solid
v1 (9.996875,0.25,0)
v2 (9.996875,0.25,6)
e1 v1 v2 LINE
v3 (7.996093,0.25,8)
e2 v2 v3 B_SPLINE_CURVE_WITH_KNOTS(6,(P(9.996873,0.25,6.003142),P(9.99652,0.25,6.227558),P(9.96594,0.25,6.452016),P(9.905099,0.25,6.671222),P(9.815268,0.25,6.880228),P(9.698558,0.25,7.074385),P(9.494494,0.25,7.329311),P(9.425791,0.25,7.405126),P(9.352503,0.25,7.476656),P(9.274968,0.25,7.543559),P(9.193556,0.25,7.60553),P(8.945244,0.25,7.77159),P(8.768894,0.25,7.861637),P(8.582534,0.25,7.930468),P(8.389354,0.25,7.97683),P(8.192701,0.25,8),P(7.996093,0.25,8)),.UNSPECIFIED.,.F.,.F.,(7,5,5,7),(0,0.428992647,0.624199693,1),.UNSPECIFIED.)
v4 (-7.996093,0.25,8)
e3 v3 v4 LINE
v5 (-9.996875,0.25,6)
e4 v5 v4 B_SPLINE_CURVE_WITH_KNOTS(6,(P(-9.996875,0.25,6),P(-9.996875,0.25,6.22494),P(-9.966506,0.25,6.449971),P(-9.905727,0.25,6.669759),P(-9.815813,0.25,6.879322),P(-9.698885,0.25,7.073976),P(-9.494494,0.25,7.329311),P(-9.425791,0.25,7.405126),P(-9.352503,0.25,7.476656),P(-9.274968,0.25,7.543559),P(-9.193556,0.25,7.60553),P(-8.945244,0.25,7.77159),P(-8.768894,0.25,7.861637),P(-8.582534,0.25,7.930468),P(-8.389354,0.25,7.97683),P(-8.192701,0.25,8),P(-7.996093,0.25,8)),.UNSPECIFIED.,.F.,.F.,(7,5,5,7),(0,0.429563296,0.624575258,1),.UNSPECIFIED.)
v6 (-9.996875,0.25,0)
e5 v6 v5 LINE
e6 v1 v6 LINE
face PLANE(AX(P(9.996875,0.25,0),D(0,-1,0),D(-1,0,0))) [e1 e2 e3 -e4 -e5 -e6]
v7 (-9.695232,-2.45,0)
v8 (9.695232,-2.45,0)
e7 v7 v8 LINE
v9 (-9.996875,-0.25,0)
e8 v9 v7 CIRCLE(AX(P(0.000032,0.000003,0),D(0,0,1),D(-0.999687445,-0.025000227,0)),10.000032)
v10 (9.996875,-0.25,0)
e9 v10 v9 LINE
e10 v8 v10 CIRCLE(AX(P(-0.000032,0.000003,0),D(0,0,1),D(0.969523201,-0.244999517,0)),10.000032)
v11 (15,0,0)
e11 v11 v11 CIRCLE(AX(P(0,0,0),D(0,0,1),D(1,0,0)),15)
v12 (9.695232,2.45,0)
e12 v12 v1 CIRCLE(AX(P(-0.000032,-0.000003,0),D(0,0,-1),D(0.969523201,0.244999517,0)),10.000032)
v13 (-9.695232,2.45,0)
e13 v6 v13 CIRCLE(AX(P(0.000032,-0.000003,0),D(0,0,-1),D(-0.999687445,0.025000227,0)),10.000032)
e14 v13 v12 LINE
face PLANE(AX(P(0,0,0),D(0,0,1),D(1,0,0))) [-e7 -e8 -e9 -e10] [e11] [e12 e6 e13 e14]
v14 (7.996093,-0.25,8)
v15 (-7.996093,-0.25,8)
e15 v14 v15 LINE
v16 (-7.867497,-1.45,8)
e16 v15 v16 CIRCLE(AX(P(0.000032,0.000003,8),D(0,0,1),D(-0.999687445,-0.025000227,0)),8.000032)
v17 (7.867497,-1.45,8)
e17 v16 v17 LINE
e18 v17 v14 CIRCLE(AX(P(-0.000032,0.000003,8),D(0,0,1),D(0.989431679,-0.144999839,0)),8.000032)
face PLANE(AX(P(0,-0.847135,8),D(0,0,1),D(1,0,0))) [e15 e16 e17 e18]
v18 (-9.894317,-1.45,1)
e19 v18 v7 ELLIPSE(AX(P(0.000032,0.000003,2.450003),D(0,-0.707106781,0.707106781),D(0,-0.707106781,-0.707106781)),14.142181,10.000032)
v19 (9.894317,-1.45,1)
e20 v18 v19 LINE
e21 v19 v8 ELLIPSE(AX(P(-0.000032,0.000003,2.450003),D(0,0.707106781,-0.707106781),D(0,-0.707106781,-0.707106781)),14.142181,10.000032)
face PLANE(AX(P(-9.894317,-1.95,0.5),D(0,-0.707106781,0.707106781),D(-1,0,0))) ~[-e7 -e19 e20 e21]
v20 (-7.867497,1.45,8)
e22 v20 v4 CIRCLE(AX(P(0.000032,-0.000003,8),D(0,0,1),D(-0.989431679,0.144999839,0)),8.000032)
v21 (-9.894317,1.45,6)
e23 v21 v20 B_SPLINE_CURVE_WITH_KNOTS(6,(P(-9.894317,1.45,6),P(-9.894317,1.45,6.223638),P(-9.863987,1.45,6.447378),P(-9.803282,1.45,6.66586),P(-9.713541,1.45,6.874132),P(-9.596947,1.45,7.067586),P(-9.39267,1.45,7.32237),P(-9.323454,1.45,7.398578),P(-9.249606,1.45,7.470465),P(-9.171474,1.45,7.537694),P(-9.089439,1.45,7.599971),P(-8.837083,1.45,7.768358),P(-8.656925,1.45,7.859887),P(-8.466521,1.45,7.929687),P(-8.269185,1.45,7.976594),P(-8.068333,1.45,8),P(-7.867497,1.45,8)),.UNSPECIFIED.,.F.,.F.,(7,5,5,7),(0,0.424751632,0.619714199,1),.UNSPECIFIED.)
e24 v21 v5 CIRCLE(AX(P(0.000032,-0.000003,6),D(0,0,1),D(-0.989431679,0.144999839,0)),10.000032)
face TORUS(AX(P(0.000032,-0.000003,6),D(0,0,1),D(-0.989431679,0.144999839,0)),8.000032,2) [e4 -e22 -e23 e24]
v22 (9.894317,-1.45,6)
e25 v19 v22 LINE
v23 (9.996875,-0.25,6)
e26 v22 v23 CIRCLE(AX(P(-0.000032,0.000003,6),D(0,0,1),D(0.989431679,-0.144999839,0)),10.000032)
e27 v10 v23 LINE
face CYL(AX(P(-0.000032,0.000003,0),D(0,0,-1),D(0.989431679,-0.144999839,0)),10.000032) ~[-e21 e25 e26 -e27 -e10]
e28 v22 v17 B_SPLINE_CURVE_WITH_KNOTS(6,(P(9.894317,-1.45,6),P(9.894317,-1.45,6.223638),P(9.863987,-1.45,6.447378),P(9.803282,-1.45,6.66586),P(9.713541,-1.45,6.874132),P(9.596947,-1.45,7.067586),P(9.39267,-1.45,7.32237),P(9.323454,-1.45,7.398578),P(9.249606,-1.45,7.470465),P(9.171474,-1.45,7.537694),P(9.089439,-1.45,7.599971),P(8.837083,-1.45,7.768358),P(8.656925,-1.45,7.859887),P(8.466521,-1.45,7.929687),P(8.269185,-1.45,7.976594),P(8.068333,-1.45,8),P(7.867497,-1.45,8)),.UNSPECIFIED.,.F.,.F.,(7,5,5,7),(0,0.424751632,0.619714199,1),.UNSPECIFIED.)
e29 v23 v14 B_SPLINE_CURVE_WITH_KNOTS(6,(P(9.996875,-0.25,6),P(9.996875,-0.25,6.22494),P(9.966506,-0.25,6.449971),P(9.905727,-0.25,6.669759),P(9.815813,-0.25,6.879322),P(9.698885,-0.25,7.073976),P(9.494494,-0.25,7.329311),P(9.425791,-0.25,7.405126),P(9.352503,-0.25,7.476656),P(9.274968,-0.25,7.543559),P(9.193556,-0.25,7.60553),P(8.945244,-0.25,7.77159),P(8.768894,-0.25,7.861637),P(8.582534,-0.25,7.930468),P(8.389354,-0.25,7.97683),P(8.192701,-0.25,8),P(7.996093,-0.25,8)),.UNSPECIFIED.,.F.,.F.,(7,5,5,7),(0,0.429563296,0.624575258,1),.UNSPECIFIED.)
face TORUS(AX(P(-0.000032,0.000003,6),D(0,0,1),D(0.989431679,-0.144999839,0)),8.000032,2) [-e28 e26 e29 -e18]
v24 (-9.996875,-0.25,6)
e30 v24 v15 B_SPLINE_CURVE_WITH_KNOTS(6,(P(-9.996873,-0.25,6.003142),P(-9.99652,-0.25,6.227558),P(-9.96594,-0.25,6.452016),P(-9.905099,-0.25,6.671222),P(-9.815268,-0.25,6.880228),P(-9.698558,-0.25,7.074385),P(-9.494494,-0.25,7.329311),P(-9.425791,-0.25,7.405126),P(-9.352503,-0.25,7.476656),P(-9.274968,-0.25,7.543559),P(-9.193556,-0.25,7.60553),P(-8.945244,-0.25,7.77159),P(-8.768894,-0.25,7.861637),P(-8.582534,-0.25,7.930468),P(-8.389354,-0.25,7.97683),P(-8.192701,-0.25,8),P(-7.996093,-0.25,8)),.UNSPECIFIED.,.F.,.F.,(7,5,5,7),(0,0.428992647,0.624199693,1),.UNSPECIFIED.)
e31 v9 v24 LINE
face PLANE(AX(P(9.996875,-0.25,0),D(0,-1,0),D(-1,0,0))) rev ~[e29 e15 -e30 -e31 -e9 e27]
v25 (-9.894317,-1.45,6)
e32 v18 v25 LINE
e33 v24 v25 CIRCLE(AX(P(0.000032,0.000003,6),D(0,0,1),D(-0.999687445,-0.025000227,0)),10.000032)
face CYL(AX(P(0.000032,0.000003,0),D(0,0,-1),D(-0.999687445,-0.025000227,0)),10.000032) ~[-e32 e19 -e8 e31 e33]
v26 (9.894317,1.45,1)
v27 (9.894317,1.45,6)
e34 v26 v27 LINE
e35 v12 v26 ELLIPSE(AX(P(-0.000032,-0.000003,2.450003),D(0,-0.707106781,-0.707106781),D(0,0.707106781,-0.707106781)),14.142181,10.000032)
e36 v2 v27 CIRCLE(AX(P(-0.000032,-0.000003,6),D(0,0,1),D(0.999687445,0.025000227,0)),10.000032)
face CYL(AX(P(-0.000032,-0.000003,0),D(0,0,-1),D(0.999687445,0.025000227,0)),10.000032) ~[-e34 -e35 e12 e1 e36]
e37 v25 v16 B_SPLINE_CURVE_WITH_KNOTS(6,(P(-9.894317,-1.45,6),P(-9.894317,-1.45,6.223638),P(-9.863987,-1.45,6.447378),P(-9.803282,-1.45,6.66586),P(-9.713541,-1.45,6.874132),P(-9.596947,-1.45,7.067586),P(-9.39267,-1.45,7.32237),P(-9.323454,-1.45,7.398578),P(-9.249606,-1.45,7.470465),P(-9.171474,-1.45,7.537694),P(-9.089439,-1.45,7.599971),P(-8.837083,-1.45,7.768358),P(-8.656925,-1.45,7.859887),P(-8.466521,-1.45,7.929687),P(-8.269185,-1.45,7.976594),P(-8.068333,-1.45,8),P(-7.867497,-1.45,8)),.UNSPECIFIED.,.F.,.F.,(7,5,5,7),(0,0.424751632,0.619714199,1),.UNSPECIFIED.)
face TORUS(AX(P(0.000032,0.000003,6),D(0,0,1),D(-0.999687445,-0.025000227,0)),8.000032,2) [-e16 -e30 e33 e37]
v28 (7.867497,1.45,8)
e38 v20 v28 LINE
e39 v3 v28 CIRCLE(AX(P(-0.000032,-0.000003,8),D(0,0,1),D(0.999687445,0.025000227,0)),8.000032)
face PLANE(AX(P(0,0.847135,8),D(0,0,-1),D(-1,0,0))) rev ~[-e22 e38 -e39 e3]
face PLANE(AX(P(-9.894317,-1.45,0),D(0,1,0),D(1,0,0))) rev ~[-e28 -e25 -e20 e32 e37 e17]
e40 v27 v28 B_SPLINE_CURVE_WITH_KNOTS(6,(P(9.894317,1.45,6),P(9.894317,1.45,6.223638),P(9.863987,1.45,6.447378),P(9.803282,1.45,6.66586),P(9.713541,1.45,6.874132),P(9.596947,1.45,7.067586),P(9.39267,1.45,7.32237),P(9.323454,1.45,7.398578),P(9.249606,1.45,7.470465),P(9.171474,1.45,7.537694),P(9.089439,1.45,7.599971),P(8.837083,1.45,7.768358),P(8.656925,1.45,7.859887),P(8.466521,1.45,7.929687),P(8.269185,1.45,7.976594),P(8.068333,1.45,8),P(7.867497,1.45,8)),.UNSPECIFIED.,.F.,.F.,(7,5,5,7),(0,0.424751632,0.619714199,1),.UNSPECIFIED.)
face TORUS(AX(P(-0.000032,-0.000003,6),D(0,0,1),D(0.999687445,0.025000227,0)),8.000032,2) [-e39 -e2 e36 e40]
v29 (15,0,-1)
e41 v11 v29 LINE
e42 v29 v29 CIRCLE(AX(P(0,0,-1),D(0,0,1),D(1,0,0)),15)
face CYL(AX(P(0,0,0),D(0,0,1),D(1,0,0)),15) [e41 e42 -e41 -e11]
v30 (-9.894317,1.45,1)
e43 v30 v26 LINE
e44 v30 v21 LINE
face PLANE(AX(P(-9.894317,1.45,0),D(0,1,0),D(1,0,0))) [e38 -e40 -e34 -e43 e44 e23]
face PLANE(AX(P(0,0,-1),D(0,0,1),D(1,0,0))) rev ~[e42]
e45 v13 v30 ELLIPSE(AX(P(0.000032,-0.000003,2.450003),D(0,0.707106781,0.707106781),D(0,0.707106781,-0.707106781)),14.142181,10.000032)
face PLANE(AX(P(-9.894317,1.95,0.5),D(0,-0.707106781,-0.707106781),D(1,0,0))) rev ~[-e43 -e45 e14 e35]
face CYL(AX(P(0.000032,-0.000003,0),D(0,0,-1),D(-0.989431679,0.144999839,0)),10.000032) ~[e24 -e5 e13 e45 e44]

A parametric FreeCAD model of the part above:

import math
import FreeCAD as App
import Part
import Sketcher
from FreeCAD import Vector


def edges_at(feature, points):
    """Names of the edges that pass closest to the given points."""
    edges = feature.Shape.Edges
    near = lambda p: min(range(len(edges)), key=lambda i: edges[i].distToShape(Part.Vertex(*p))[0])
    return sorted({f"Edge{near(p) + 1}" for p in points})

doc = App.newDocument("Part")
body = doc.addObject("PartDesign::Body", "Body")

sketch1 = body.newObject("Sketcher::SketchObject", "Sketch")
sketch1.AttachmentSupport = (doc.getObject("XY_Plane"), [""])
sketch1.MapMode = "FlatFace"
sketch1.addGeometry(Part.Circle(Vector(0, 0, 0), Vector(0, 0, 1), 15), False)
sketch1.addConstraint(Sketcher.Constraint("Coincident", 0, 3, -1, 1))
sketch1.addConstraint(Sketcher.Constraint("Diameter", 0, 30.0))
pad1 = body.newObject("PartDesign::Pad", "Pad")
pad1.Profile = sketch1
pad1.Length = 1
pad1.Reversed = True

sketch2 = body.newObject("Sketcher::SketchObject", "Sketch001")
sketch2.AttachmentSupport = (doc.getObject("XY_Plane"), [""])
sketch2.MapMode = "FlatFace"
sketch2.addGeometry(Part.LineSegment(Vector(9.9, 1.4, 0), Vector(-9.9, 1.4, 0)), False)
sketch2.addGeometry(Part.ArcOfCircle(Part.Circle(Vector(0, 0, 0), Vector(0, 0, 1), 10), math.radians(171.66), math.radians(178.57)), False)
sketch2.addGeometry(Part.LineSegment(Vector(-10, 0.2, 0), Vector(10, 0.2, 0)), False)
sketch2.addGeometry(Part.ArcOfCircle(Part.Circle(Vector(0, 0, 0), Vector(0, 0, 1), 10), math.radians(1.43), math.radians(8.34)), False)
sketch2.addGeometry(Part.LineSegment(Vector(-9.9, -1.4, 0), Vector(9.9, -1.4, 0)), False)
sketch2.addGeometry(Part.ArcOfCircle(Part.Circle(Vector(0, 0, 0), Vector(0, 0, 1), 10), math.radians(-8.34), math.radians(-1.43)), False)
sketch2.addGeometry(Part.LineSegment(Vector(10, -0.2, 0), Vector(-10, -0.2, 0)), False)
sketch2.addGeometry(Part.ArcOfCircle(Part.Circle(Vector(0, 0, 0), Vector(0, 0, 1), 10), math.radians(-178.57), math.radians(-171.66)), False)
sketch2.addConstraint(Sketcher.Constraint("Coincident", 0, 2, 1, 1))
sketch2.addConstraint(Sketcher.Constraint("Coincident", 1, 2, 2, 1))
sketch2.addConstraint(Sketcher.Constraint("Coincident", 2, 2, 3, 1))
sketch2.addConstraint(Sketcher.Constraint("Coincident", 3, 2, 0, 1))
sketch2.addConstraint(Sketcher.Constraint("Coincident", 4, 2, 5, 1))
sketch2.addConstraint(Sketcher.Constraint("Coincident", 5, 2, 6, 1))
sketch2.addConstraint(Sketcher.Constraint("Coincident", 6, 2, 7, 1))
sketch2.addConstraint(Sketcher.Constraint("Coincident", 7, 2, 4, 1))
sketch2.addConstraint(Sketcher.Constraint("Horizontal", 0))
sketch2.addConstraint(Sketcher.Constraint("Horizontal", 2))
sketch2.addConstraint(Sketcher.Constraint("Horizontal", 4))
sketch2.addConstraint(Sketcher.Constraint("Horizontal", 6))
sketch2.addConstraint(Sketcher.Constraint("Coincident", 5, 3, 3, 3))
sketch2.addConstraint(Sketcher.Constraint("Coincident", 7, 3, 1, 3))
sketch2.addConstraint(Sketcher.Constraint("Equal", 1, 3))
sketch2.addConstraint(Sketcher.Constraint("Equal", 3, 5))
sketch2.addConstraint(Sketcher.Constraint("Equal", 5, 7))
sketch2.addConstraint(Sketcher.Constraint("Symmetric", 1, 3, 3, 3, -1, 1))
sketch2.addConstraint(Sketcher.Constraint("Symmetric", 3, 2, 4, 2, -1))
sketch2.addConstraint(Sketcher.Constraint("Vertical", 2, 2, 5, 2))
sketch2.addConstraint(Sketcher.Constraint("DistanceY", 1, 2, 0, 2, 1.2))
sketch2.addConstraint(Sketcher.Constraint("DistanceY", 4, 2, 2, 2, 1.7))
sketch2.addConstraint(Sketcher.Constraint("Radius", 1, 10.000032))
sketch2.addConstraint(Sketcher.Constraint("DistanceX", 2, 1, 2, 2, 19.99375))
pad2 = body.newObject("PartDesign::Pad", "Pad001")
pad2.Profile = sketch2
pad2.Length = 8
doc.recompute()

fillet = body.newObject("PartDesign::Fillet", "Fillet")
fillet.Base = (pad2, edges_at(pad2, [
    (9.964, -0.852, 8),
    (-9.964, -0.852, 8),
    (-9.964, 0.852, 8),
    (9.964, 0.852, 8),
]))
fillet.Radius = 2
doc.recompute()

chamfer = body.newObject("PartDesign::Chamfer", "Chamfer")
chamfer.Base = (fillet, edges_at(fillet, [(0, 1.45, 0), (0, -1.45, 0)]))
chamfer.Size = 1

doc.recompute()
